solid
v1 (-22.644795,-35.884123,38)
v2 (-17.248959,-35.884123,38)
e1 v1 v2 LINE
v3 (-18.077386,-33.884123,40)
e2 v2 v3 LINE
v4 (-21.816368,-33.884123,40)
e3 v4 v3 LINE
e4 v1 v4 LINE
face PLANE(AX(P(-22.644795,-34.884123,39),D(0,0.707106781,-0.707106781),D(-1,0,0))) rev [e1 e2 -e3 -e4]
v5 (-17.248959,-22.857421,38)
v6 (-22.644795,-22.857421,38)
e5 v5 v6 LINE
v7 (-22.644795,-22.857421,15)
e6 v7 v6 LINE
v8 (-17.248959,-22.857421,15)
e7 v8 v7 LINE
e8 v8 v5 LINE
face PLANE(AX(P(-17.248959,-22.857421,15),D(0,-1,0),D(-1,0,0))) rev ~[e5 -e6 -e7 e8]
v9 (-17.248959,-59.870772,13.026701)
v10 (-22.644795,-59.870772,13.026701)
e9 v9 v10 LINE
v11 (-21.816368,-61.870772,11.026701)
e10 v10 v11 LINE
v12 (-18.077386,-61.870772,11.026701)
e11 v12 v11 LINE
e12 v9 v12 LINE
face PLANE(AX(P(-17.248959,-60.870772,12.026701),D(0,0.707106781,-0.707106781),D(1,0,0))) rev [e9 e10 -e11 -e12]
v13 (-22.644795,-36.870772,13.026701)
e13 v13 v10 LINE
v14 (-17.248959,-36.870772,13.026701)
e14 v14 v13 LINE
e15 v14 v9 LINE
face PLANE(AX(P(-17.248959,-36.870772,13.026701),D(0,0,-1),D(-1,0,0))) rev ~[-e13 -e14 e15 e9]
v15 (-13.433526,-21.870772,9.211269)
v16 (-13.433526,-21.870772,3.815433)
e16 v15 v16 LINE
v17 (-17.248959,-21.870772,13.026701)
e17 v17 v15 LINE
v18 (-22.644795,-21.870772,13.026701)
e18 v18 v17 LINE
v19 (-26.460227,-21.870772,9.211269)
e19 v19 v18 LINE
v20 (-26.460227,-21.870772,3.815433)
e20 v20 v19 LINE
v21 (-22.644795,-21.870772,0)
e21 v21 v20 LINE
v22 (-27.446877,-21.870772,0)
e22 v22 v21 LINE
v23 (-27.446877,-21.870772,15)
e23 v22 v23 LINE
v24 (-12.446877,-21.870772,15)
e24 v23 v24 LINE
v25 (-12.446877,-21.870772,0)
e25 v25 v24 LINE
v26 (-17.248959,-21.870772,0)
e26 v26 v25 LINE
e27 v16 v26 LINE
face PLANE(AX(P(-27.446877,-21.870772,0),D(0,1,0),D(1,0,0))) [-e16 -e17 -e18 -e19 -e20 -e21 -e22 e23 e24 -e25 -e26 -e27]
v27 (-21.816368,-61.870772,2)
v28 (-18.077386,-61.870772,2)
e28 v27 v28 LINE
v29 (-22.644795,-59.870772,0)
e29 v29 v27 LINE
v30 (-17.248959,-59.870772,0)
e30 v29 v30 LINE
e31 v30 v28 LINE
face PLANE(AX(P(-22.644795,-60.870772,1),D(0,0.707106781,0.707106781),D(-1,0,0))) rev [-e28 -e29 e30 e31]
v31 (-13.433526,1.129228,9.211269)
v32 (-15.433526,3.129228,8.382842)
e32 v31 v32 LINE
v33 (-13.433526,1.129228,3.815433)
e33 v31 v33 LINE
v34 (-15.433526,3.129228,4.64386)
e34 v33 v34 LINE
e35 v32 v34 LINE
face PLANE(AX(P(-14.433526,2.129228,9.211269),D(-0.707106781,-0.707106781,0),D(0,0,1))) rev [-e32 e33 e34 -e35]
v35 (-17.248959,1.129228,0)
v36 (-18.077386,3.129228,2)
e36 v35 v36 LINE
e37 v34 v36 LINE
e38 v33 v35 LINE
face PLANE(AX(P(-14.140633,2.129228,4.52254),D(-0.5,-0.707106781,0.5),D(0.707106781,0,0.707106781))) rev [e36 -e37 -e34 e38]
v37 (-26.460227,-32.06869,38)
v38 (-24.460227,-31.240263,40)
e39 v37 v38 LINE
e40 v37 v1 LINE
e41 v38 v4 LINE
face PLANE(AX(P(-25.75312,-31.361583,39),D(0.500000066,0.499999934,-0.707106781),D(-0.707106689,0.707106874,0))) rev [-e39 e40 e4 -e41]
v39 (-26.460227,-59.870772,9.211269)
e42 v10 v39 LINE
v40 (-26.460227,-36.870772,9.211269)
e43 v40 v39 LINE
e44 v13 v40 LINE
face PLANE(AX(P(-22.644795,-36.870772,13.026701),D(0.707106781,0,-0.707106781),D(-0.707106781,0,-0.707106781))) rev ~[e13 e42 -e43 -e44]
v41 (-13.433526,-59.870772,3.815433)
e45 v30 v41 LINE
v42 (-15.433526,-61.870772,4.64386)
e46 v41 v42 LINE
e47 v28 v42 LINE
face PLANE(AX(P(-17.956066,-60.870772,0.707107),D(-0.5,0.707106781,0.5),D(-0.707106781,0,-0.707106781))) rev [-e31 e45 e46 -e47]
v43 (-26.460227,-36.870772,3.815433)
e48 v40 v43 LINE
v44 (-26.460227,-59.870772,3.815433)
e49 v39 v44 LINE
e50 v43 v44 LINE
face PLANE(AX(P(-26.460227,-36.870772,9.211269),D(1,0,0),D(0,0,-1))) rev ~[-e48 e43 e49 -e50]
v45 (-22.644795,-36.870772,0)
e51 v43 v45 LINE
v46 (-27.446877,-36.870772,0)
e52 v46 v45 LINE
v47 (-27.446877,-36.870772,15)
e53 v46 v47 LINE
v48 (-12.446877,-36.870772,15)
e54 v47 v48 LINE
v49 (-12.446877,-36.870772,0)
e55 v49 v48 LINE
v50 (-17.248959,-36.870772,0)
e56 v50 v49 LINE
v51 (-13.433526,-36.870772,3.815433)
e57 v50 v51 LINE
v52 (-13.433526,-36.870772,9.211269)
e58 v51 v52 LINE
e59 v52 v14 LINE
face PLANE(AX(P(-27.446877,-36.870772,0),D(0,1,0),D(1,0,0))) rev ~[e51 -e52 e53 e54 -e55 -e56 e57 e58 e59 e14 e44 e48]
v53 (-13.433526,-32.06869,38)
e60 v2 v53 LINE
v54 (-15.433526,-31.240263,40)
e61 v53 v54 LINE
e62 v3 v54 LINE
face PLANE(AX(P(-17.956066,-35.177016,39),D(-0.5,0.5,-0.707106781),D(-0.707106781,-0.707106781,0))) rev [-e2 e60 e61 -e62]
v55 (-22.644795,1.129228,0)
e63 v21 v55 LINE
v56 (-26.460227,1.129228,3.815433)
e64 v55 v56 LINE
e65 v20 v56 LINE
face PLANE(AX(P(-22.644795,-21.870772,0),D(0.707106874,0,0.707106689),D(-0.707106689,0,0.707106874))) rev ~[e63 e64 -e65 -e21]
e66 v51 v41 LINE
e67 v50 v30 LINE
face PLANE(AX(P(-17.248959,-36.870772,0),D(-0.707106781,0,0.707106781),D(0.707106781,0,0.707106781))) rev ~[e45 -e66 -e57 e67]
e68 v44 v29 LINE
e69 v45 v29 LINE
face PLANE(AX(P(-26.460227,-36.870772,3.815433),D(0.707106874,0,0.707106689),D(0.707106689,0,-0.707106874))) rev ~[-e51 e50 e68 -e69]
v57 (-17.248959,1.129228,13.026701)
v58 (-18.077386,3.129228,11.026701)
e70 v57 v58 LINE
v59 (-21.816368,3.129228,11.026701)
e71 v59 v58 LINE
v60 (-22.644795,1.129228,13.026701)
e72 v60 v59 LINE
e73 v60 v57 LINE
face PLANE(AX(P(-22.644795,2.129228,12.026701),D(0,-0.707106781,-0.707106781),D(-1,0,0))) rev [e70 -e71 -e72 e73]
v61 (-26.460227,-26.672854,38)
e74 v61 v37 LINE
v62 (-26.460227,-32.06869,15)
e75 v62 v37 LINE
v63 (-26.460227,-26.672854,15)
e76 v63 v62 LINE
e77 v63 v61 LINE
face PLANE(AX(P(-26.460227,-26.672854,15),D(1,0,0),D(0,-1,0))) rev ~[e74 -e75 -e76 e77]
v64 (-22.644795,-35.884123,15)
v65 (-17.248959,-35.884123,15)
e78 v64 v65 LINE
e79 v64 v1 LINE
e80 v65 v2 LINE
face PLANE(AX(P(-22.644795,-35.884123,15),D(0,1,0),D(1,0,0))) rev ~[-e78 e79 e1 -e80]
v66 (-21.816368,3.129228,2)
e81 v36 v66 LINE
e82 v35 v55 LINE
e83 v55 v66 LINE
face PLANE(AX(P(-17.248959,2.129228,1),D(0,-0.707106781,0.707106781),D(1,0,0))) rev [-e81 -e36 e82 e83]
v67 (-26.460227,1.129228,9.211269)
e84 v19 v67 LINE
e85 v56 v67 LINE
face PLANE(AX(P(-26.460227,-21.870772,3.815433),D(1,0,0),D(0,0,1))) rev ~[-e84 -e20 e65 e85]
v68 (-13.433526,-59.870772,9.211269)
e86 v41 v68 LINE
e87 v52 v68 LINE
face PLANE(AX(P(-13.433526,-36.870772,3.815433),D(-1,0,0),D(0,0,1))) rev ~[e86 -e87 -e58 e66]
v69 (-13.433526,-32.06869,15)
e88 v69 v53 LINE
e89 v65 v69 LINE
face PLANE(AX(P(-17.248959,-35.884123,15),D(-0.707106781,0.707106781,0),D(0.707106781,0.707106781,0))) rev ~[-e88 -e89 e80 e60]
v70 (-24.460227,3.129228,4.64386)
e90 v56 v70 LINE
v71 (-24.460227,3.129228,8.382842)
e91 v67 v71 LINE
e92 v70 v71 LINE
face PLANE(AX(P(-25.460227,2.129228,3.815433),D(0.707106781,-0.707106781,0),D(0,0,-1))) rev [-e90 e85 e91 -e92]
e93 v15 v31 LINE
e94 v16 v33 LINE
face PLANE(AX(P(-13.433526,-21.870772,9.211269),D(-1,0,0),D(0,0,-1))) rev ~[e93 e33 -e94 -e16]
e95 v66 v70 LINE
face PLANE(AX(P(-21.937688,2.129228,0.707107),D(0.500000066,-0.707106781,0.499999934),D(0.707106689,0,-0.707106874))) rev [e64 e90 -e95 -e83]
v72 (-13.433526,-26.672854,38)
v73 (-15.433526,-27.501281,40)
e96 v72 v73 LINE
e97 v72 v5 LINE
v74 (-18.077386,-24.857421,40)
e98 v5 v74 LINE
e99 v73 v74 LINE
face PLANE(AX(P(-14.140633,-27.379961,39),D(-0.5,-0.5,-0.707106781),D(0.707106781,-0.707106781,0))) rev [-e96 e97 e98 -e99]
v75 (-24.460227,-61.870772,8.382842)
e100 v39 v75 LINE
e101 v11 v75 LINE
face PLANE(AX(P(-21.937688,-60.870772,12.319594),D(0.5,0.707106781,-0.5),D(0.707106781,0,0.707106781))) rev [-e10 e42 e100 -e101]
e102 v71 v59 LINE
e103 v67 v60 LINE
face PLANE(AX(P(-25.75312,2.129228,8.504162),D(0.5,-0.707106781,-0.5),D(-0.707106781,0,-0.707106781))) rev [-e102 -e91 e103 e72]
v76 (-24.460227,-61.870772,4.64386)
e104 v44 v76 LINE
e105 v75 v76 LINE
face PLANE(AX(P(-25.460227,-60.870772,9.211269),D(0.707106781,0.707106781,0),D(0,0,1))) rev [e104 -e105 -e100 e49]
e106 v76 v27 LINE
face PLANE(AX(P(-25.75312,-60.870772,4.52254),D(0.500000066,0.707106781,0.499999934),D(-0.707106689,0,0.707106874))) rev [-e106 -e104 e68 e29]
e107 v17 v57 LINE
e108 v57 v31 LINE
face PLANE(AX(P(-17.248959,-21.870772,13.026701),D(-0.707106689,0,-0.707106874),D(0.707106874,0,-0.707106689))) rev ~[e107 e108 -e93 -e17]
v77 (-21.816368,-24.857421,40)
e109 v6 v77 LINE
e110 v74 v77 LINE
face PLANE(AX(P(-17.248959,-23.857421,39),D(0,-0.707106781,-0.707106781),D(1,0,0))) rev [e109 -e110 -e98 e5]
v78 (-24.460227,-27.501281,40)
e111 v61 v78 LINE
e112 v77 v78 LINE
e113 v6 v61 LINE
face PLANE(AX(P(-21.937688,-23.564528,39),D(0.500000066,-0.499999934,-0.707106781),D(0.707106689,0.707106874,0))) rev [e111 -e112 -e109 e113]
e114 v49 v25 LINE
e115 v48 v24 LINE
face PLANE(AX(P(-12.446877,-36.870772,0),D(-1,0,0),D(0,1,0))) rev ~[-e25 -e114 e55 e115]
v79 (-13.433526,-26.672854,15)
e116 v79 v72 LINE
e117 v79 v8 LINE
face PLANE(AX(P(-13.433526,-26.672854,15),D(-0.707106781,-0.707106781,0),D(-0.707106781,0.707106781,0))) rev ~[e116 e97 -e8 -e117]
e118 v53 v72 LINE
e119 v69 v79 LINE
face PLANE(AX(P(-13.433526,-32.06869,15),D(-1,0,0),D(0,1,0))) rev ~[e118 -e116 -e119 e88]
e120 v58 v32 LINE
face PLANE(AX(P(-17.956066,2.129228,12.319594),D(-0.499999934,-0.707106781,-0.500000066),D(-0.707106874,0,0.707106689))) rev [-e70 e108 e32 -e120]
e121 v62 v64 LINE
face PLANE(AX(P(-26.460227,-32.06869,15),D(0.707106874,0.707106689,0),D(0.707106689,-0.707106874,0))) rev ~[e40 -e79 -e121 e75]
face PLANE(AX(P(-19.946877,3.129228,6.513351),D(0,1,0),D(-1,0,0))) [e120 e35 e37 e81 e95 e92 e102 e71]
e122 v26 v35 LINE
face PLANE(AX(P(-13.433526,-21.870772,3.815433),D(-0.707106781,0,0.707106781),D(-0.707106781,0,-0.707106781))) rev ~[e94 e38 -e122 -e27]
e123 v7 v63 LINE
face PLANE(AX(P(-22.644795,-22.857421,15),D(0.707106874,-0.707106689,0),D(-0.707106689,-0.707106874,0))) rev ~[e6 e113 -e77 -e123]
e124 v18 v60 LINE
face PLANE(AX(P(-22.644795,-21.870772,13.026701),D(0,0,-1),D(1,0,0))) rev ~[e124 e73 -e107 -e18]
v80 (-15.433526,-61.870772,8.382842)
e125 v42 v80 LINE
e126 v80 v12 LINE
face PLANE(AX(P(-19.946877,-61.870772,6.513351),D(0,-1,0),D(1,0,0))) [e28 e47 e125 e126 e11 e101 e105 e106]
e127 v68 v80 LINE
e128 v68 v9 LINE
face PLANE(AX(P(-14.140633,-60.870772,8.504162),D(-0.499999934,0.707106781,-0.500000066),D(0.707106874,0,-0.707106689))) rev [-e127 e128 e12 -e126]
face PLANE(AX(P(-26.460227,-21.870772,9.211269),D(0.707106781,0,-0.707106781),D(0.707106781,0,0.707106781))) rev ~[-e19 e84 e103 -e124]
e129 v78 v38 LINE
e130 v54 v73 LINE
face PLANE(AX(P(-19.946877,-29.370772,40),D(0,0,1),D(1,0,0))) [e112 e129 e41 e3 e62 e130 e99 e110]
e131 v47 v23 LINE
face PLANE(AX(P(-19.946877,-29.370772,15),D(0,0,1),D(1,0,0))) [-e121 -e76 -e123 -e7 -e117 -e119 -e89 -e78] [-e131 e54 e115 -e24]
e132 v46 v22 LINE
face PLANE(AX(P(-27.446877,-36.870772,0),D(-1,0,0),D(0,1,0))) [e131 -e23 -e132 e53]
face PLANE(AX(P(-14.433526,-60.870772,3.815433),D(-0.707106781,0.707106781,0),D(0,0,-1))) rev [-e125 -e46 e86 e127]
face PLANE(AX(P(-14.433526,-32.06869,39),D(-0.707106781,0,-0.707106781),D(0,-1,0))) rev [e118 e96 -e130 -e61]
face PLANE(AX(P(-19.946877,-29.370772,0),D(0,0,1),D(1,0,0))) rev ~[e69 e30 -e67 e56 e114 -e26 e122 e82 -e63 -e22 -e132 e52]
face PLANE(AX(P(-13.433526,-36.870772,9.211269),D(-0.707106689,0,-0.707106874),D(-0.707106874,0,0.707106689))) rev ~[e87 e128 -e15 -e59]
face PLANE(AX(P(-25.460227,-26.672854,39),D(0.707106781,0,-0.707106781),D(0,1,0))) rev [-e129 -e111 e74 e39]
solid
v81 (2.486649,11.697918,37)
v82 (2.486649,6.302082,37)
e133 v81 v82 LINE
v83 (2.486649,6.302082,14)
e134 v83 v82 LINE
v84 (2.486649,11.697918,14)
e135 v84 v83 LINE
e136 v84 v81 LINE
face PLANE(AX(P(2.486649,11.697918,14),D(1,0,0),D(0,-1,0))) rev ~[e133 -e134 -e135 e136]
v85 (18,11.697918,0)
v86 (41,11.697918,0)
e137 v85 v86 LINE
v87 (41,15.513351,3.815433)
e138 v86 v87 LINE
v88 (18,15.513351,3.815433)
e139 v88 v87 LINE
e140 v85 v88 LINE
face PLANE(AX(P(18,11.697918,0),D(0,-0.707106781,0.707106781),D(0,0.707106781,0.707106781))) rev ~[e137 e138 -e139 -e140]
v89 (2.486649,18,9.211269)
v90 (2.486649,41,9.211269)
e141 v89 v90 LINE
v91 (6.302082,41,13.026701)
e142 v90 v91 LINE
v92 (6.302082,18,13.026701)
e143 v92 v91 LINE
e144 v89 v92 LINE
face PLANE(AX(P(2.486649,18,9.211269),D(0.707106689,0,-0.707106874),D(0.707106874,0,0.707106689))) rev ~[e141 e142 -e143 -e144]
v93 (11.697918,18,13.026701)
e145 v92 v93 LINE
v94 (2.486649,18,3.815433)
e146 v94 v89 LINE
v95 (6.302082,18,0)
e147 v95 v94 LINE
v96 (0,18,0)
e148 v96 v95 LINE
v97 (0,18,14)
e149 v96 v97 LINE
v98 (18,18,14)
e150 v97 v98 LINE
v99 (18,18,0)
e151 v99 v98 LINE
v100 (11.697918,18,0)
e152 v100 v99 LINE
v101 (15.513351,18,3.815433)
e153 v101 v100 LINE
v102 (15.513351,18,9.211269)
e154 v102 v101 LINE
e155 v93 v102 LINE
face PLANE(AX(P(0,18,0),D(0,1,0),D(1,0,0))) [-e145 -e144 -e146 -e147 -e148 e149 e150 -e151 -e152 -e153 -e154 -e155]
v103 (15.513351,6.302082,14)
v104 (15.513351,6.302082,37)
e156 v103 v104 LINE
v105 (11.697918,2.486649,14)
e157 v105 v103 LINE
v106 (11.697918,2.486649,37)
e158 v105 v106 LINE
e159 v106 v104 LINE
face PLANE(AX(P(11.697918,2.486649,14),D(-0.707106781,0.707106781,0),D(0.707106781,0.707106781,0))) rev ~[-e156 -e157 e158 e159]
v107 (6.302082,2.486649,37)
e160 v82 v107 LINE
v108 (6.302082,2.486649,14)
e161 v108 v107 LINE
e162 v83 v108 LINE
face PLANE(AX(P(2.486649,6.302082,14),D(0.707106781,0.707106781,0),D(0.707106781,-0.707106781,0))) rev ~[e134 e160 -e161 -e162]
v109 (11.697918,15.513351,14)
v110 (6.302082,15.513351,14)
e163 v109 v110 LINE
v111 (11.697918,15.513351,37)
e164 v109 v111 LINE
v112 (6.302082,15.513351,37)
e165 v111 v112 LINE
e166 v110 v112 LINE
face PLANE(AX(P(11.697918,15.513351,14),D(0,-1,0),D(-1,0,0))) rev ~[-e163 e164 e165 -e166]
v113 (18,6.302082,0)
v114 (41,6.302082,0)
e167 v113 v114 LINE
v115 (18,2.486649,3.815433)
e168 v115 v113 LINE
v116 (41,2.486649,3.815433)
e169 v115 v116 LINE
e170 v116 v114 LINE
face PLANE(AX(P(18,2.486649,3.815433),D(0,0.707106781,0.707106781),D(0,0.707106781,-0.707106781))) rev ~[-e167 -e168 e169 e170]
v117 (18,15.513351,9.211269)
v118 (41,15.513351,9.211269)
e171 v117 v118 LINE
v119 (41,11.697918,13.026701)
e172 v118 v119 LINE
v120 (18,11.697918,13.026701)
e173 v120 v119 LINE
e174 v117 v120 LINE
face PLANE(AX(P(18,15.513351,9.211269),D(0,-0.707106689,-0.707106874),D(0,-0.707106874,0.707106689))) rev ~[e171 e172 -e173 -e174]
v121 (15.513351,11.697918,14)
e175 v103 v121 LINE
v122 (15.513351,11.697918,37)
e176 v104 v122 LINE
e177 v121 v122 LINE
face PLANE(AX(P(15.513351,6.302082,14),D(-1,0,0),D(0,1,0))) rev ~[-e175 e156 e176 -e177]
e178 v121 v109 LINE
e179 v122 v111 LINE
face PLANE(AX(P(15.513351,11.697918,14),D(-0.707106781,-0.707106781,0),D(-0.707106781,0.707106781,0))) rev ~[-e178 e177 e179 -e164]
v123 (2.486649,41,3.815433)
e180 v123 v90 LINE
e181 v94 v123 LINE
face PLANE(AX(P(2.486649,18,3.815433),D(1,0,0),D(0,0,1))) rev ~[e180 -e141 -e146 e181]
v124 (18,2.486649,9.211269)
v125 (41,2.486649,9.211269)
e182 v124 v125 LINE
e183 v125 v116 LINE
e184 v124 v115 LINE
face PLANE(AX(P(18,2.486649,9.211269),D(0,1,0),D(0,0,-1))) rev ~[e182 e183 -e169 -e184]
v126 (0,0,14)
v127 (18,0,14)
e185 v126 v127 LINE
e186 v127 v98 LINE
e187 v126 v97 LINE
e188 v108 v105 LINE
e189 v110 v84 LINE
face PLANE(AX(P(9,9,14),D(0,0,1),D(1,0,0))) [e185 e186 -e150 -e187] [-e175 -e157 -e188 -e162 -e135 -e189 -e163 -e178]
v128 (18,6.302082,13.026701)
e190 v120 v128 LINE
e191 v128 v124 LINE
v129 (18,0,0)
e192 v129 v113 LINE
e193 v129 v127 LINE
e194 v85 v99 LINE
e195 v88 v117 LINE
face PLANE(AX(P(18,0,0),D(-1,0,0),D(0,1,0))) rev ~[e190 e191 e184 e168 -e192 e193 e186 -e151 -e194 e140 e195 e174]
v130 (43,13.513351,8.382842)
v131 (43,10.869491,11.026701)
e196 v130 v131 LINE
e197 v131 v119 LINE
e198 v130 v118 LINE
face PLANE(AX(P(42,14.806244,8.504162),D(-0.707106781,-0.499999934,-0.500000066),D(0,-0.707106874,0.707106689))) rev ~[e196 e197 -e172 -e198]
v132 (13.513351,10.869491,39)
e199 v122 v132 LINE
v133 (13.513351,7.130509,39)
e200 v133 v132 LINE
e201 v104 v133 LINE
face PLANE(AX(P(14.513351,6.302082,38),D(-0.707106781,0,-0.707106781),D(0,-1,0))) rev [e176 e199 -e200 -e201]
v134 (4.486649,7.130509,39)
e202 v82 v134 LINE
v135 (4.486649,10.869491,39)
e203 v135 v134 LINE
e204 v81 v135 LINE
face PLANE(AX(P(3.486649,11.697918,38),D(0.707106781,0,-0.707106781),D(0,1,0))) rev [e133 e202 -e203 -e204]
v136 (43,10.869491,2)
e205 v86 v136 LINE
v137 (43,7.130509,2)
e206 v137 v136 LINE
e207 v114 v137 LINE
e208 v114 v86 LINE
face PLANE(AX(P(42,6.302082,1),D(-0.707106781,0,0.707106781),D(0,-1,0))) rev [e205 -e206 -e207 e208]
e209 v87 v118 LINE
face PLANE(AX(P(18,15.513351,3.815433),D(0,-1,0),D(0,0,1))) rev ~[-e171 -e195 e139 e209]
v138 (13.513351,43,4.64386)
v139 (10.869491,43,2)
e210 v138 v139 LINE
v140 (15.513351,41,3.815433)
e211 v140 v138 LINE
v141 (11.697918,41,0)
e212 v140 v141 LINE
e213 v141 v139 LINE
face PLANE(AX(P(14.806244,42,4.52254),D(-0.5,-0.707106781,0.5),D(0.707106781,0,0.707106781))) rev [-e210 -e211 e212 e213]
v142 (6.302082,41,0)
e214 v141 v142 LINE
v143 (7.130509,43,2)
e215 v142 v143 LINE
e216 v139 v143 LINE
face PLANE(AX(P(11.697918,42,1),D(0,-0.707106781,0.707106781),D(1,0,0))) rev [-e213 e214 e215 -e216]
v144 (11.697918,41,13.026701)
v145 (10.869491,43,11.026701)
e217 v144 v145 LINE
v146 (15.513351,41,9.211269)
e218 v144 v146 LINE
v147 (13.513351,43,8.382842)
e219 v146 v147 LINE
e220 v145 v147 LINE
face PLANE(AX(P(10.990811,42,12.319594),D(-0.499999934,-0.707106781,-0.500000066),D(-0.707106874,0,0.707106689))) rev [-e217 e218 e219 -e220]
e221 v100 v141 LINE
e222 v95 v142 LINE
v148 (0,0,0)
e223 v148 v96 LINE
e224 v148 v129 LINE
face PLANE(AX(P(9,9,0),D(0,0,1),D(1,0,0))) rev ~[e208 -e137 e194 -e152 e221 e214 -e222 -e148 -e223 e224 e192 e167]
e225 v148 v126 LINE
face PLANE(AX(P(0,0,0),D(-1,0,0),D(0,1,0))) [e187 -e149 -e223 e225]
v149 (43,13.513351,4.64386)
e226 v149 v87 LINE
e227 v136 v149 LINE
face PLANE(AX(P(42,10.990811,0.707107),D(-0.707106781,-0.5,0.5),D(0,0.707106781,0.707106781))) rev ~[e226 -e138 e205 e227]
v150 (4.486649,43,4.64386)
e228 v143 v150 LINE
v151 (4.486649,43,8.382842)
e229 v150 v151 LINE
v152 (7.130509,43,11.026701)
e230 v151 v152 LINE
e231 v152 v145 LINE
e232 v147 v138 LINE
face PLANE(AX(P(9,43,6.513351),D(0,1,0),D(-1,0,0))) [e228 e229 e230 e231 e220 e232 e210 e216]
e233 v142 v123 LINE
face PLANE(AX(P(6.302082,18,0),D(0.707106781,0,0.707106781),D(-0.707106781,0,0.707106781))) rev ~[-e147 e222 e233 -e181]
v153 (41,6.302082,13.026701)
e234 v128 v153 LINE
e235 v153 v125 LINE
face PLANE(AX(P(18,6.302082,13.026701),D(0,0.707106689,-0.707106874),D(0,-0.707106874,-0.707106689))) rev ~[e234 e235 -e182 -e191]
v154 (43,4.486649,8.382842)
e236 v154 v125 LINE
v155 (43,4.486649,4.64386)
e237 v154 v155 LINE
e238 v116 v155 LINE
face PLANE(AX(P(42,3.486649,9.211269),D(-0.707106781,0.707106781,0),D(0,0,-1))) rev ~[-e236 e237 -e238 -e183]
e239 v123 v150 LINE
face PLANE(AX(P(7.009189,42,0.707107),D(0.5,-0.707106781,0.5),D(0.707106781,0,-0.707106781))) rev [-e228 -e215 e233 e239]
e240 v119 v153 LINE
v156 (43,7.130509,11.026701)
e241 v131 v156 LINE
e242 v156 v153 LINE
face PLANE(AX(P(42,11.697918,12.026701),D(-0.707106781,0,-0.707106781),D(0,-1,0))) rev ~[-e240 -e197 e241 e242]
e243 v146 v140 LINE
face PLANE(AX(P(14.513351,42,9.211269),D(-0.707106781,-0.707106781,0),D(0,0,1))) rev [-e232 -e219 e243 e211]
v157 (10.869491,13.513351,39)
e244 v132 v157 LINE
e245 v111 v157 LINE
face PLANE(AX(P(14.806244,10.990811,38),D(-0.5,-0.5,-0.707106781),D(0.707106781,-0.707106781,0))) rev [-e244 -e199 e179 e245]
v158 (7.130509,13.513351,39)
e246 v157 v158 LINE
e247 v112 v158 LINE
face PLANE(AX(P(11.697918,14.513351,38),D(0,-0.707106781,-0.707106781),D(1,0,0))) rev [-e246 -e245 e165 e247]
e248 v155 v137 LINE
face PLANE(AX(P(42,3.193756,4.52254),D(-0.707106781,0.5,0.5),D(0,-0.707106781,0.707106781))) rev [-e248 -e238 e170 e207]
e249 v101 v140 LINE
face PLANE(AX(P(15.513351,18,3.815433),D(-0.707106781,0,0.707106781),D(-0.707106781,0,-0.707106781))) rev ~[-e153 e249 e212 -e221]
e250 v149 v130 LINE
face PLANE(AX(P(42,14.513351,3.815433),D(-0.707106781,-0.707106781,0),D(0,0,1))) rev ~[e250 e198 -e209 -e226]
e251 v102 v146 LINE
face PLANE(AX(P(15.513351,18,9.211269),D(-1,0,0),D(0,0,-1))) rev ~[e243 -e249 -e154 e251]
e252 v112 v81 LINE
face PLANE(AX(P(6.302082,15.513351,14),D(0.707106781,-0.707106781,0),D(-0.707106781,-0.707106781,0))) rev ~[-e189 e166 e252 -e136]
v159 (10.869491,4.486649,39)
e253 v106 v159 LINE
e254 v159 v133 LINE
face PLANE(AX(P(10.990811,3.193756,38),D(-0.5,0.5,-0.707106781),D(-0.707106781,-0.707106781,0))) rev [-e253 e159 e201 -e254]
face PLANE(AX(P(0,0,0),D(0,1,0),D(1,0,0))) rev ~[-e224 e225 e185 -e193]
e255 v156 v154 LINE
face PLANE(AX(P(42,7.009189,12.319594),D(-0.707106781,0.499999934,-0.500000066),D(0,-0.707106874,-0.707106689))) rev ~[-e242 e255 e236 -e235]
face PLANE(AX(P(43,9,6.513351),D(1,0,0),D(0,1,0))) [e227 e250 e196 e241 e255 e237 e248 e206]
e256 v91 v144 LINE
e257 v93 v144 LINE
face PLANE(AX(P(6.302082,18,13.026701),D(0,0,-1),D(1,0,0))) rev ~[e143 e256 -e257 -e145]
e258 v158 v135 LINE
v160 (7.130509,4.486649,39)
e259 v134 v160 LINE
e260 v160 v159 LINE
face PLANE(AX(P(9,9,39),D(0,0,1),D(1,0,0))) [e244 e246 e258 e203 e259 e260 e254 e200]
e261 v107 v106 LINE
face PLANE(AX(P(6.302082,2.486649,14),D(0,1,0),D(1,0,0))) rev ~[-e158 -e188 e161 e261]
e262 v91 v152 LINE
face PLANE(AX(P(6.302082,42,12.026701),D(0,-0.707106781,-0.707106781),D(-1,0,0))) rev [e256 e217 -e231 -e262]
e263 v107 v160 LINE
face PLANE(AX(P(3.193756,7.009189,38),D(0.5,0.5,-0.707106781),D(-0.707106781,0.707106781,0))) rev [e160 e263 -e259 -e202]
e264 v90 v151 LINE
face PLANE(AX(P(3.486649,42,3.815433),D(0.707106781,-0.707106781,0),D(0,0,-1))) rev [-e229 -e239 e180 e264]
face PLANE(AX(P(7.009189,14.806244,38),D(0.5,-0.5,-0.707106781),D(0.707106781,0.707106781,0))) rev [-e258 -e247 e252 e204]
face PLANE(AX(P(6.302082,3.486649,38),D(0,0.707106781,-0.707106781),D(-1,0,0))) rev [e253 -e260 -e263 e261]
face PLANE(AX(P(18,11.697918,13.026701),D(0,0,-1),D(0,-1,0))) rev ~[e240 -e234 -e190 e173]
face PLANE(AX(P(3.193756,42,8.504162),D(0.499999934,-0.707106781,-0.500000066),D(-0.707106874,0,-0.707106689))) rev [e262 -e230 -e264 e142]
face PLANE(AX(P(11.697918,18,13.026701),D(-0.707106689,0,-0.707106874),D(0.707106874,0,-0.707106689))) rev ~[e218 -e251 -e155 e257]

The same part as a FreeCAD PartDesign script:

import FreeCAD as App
import Part
import Sketcher
Q = App.Units.Quantity


def edges_at(feature, points):
    """Names of the edges that pass closest to the given points."""
    edges = feature.Shape.Edges
    near = lambda p: min(range(len(edges)), key=lambda i: edges[i].distToShape(Part.Vertex(*p))[0])
    return sorted({f"Edge{near(p) + 1}" for p in points})

doc = App.newDocument("Part")
body = doc.addObject("PartDesign::Body", "Body")

# Sketch on XY plane
sketch1 = body.newObject("Sketcher::SketchObject", "Sketch")
sketch1.AttachmentSupport = (doc.getObject("XY_Plane"), [""])
sketch1.MapMode = "FlatFace"
sketch1.addGeometry(Part.LineSegment(App.Vector(0, 18, 0), App.Vector(0, 0, 0)), False)
sketch1.addGeometry(Part.LineSegment(App.Vector(0, 0, 0), App.Vector(18, 0, 0)), False)
sketch1.addGeometry(Part.LineSegment(App.Vector(18, 0, 0), App.Vector(18, 18, 0)), False)
sketch1.addGeometry(Part.LineSegment(App.Vector(18, 18, 0), App.Vector(0, 18, 0)), False)
sketch1.addConstraint(Sketcher.Constraint("Coincident", 0, 2, 1, 1))
sketch1.addConstraint(Sketcher.Constraint("Coincident", 1, 2, 2, 1))
sketch1.addConstraint(Sketcher.Constraint("Coincident", 2, 2, 3, 1))
sketch1.addConstraint(Sketcher.Constraint("Coincident", 3, 2, 0, 1))
sketch1.addConstraint(Sketcher.Constraint("Vertical", 0))
sketch1.addConstraint(Sketcher.Constraint("Horizontal", 1))
sketch1.addConstraint(Sketcher.Constraint("Vertical", 2))
sketch1.addConstraint(Sketcher.Constraint("Horizontal", 3))
sketch1.addConstraint(Sketcher.Constraint("Coincident", 0, 2, -1, 1))
sketch1.addConstraint(Sketcher.Constraint("Equal", 3, 0))
sketch1.addConstraint(Sketcher.Constraint("DistanceX", 1, 1, 1, 2, Q("18 mm")))
pad1 = body.newObject("PartDesign::Pad", "Pad")
pad1.Profile = sketch1
pad1.Length = 14

# Sketch on YZ plane
sketch2 = body.newObject("Sketcher::SketchObject", "Sketch001")
sketch2.AttachmentSupport = (doc.getObject("YZ_Plane"), [""])
sketch2.MapMode = "FlatFace"
sketch2.AttachmentOffset = App.Placement(App.Vector(0, 0, 18), App.Rotation())
sketch2.addGeometry(Part.LineSegment(App.Vector(6.302082, 0, 0), App.Vector(11.697918, 0, 0)), False)
sketch2.addGeometry(Part.LineSegment(App.Vector(11.697918, 0, 0), App.Vector(15.513351, 3.815433, 0)), False)
sketch2.addGeometry(Part.LineSegment(App.Vector(15.513351, 3.815433, 0), App.Vector(15.513351, 9.211269, 0)), False)
sketch2.addGeometry(Part.LineSegment(App.Vector(15.513351, 9.211269, 0), App.Vector(11.697918, 13.026701, 0)), False)
sketch2.addGeometry(Part.LineSegment(App.Vector(11.697918, 13.026701, 0), App.Vector(6.302082, 13.026701, 0)), False)
sketch2.addGeometry(Part.LineSegment(App.Vector(6.302082, 13.026701, 0), App.Vector(2.486649, 9.211269, 0)), False)
sketch2.addGeometry(Part.LineSegment(App.Vector(2.486649, 9.211269, 0), App.Vector(2.486649, 3.815433, 0)), False)
sketch2.addGeometry(Part.LineSegment(App.Vector(2.486649, 3.815433, 0), App.Vector(6.302082, 0, 0)), False)
sketch2.addConstraint(Sketcher.Constraint("Coincident", 0, 2, 1, 1))
sketch2.addConstraint(Sketcher.Constraint("Coincident", 1, 2, 2, 1))
sketch2.addConstraint(Sketcher.Constraint("Coincident", 2, 2, 3, 1))
sketch2.addConstraint(Sketcher.Constraint("Coincident", 3, 2, 4, 1))
sketch2.addConstraint(Sketcher.Constraint("Coincident", 4, 2, 5, 1))
sketch2.addConstraint(Sketcher.Constraint("Coincident", 5, 2, 6, 1))
sketch2.addConstraint(Sketcher.Constraint("Coincident", 6, 2, 7, 1))
sketch2.addConstraint(Sketcher.Constraint("Coincident", 7, 2, 0, 1))
sketch2.addConstraint(Sketcher.Constraint("Horizontal", 0))
sketch2.addConstraint(Sketcher.Constraint("Vertical", 2))
sketch2.addConstraint(Sketcher.Constraint("Horizontal", 4))
sketch2.addConstraint(Sketcher.Constraint("Vertical", 6))
sketch2.addConstraint(Sketcher.Constraint("PointOnObject", 0, 2, -1))
sketch2.addConstraint(Sketcher.Constraint("Perpendicular", 1, 3))
sketch2.addConstraint(Sketcher.Constraint("Perpendicular", 3, 5))
sketch2.addConstraint(Sketcher.Constraint("Perpendicular", 5, 7))
sketch2.addConstraint(Sketcher.Constraint("Horizontal", 2, 2, 5, 2))
sketch2.addConstraint(Sketcher.Constraint("Horizontal", 1, 2, 6, 2))
sketch2.addConstraint(Sketcher.Constraint("Vertical", 0, 2, 3, 2))
sketch2.addConstraint(Sketcher.Constraint("Vertical", 4, 2, 7, 2))
sketch2.addConstraint(Sketcher.Constraint("Equal", 4, 2))
sketch2.addConstraint(Sketcher.Constraint("DistanceY", -1, 1, 3, 2, Q("13.026701 mm")))
sketch2.addConstraint(Sketcher.Constraint("DistanceX", 0, 1, 0, 2, Q("5.395836 mm")))
sketch2.addConstraint(Sketcher.Constraint("DistanceX", -1, 1, 1, 2, Q("15.513351 mm")))
pad2 = body.newObject("PartDesign::Pad", "Pad001")
pad2.Profile = sketch2
pad2.Length = 25

# Sketch on XZ plane
sketch3 = body.newObject("Sketcher::SketchObject", "Sketch002")
sketch3.AttachmentSupport = (doc.getObject("XZ_Plane"), [""])
sketch3.MapMode = "FlatFace"
sketch3.AttachmentOffset = App.Placement(App.Vector(0, 0, -18), App.Rotation())
sketch3.addGeometry(Part.LineSegment(App.Vector(11.697918, 0, 0), App.Vector(6.302082, 0, 0)), False)
sketch3.addGeometry(Part.LineSegment(App.Vector(6.302082, 0, 0), App.Vector(2.486649, 3.815433, 0)), False)
sketch3.addGeometry(Part.LineSegment(App.Vector(2.486649, 3.815433, 0), App.Vector(2.486649, 9.211269, 0)), False)
sketch3.addGeometry(Part.LineSegment(App.Vector(2.486649, 9.211269, 0), App.Vector(6.302082, 13.026701, 0)), False)
sketch3.addGeometry(Part.LineSegment(App.Vector(6.302082, 13.026701, 0), App.Vector(11.697918, 13.026701, 0)), False)
sketch3.addGeometry(Part.LineSegment(App.Vector(11.697918, 13.026701, 0), App.Vector(15.513351, 9.211269, 0)), False)
sketch3.addGeometry(Part.LineSegment(App.Vector(15.513351, 9.211269, 0), App.Vector(15.513351, 3.815433, 0)), False)
sketch3.addGeometry(Part.LineSegment(App.Vector(15.513351, 3.815433, 0), App.Vector(11.697918, 0, 0)), False)
sketch3.addConstraint(Sketcher.Constraint("Coincident", 0, 2, 1, 1))
sketch3.addConstraint(Sketcher.Constraint("Coincident", 1, 2, 2, 1))
sketch3.addConstraint(Sketcher.Constraint("Coincident", 2, 2, 3, 1))
sketch3.addConstraint(Sketcher.Constraint("Coincident", 3, 2, 4, 1))
sketch3.addConstraint(Sketcher.Constraint("Coincident", 4, 2, 5, 1))
sketch3.addConstraint(Sketcher.Constraint("Coincident", 5, 2, 6, 1))
sketch3.addConstraint(Sketcher.Constraint("Coincident", 6, 2, 7, 1))
sketch3.addConstraint(Sketcher.Constraint("Coincident", 7, 2, 0, 1))
sketch3.addConstraint(Sketcher.Constraint("Horizontal", 0))
sketch3.addConstraint(Sketcher.Constraint("Vertical", 2))
sketch3.addConstraint(Sketcher.Constraint("Horizontal", 4))
sketch3.addConstraint(Sketcher.Constraint("Vertical", 6))
sketch3.addConstraint(Sketcher.Constraint("PointOnObject", 0, 2, -1))
sketch3.addConstraint(Sketcher.Constraint("Perpendicular", 1, 3))
sketch3.addConstraint(Sketcher.Constraint("Perpendicular", 3, 5))
sketch3.addConstraint(Sketcher.Constraint("Perpendicular", 5, 7))
sketch3.addConstraint(Sketcher.Constraint("Horizontal", 2, 2, 5, 2))
sketch3.addConstraint(Sketcher.Constraint("Horizontal", 1, 2, 6, 2))
sketch3.addConstraint(Sketcher.Constraint("Vertical", 0, 2, 3, 2))
sketch3.addConstraint(Sketcher.Constraint("Vertical", 4, 2, 7, 2))
sketch3.addConstraint(Sketcher.Constraint("Equal", 4, 2))
sketch3.addConstraint(Sketcher.Constraint("DistanceY", -1, 1, 3, 2, Q("13.026701 mm")))
sketch3.addConstraint(Sketcher.Constraint("DistanceX", 0, 2, 0, 1, Q("5.395836 mm")))
sketch3.addConstraint(Sketcher.Constraint("DistanceX", -1, 1, 1, 2, Q("2.486649 mm")))
pad3 = body.newObject("PartDesign::Pad", "Pad002")
pad3.Profile = sketch3
pad3.Length = 25
pad3.Reversed = True

# Sketch on XY plane
sketch4 = body.newObject("Sketcher::SketchObject", "Sketch003")
sketch4.AttachmentSupport = (doc.getObject("XY_Plane"), [""])
sketch4.MapMode = "FlatFace"
sketch4.AttachmentOffset = App.Placement(App.Vector(0, 0, 14), App.Rotation())
sketch4.addGeometry(Part.LineSegment(App.Vector(11.697918, 15.513351, 0), App.Vector(6.302082, 15.513351, 0)), False)
sketch4.addGeometry(Part.LineSegment(App.Vector(6.302082, 15.513351, 0), App.Vector(2.486649, 11.697918, 0)), False)
sketch4.addGeometry(Part.LineSegment(App.Vector(2.486649, 11.697918, 0), App.Vector(2.486649, 6.302082, 0)), False)
sketch4.addGeometry(Part.LineSegment(App.Vector(2.486649, 6.302082, 0), App.Vector(6.302082, 2.486649, 0)), False)
sketch4.addGeometry(Part.LineSegment(App.Vector(6.302082, 2.486649, 0), App.Vector(11.697918, 2.486649, 0)), False)
sketch4.addGeometry(Part.LineSegment(App.Vector(11.697918, 2.486649, 0), App.Vector(15.513351, 6.302082, 0)), False)
sketch4.addGeometry(Part.LineSegment(App.Vector(15.513351, 6.302082, 0), App.Vector(15.513351, 11.697918, 0)), False)
sketch4.addGeometry(Part.LineSegment(App.Vector(15.513351, 11.697918, 0), App.Vector(11.697918, 15.513351, 0)), False)
sketch4.addConstraint(Sketcher.Constraint("Coincident", 0, 2, 1, 1))
sketch4.addConstraint(Sketcher.Constraint("Coincident", 1, 2, 2, 1))
sketch4.addConstraint(Sketcher.Constraint("Coincident", 2, 2, 3, 1))
sketch4.addConstraint(Sketcher.Constraint("Coincident", 3, 2, 4, 1))
sketch4.addConstraint(Sketcher.Constraint("Coincident", 4, 2, 5, 1))
sketch4.addConstraint(Sketcher.Constraint("Coincident", 5, 2, 6, 1))
sketch4.addConstraint(Sketcher.Constraint("Coincident", 6, 2, 7, 1))
sketch4.addConstraint(Sketcher.Constraint("Coincident", 7, 2, 0, 1))
sketch4.addConstraint(Sketcher.Constraint("Horizontal", 0))
sketch4.addConstraint(Sketcher.Constraint("Vertical", 2))
sketch4.addConstraint(Sketcher.Constraint("Horizontal", 4))
sketch4.addConstraint(Sketcher.Constraint("Vertical", 6))
sketch4.addConstraint(Sketcher.Constraint("Perpendicular", 1, 3))
sketch4.addConstraint(Sketcher.Constraint("Perpendicular", 3, 5))
sketch4.addConstraint(Sketcher.Constraint("Perpendicular", 5, 7))
sketch4.addConstraint(Sketcher.Constraint("Horizontal", 2, 2, 5, 2))
sketch4.addConstraint(Sketcher.Constraint("Horizontal", 1, 2, 6, 2))
sketch4.addConstraint(Sketcher.Constraint("Vertical", 0, 2, 3, 2))
sketch4.addConstraint(Sketcher.Constraint("Vertical", 4, 2, 7, 2))
sketch4.addConstraint(Sketcher.Constraint("Equal", 4, 2))
sketch4.addConstraint(Sketcher.Constraint("DistanceX", 0, 2, 0, 1, Q("5.395836 mm")))
sketch4.addConstraint(Sketcher.Constraint("DistanceY", -1, 1, 0, 2, Q("15.513351 mm")))
sketch4.addConstraint(Sketcher.Constraint("DistanceX", -1, 1, 1, 2, Q("2.486649 mm")))
sketch4.addConstraint(Sketcher.Constraint("DistanceY", -1, 1, 3, 2, Q("2.486649 mm")))
pad4 = body.newObject("PartDesign::Pad", "Pad003")
pad4.Profile = sketch4
pad4.Length = 25
doc.recompute()

chamfer = body.newObject("PartDesign::Chamfer", "Chamfer")
chamfer.Base = (pad4, edges_at(pad4, [
    (9, 15.513, 39),
    (4.394, 13.606, 39),
    (2.487, 9, 39),
    (4.394, 4.394, 39),
    (9, 2.487, 39),
    (13.606, 4.394, 39),
    (15.513, 9, 39),
    (13.606, 13.606, 39),
    (43, 4.394, 1.908),
    (43, 9, 0),
    (43, 13.606, 1.908),
    (43, 15.513, 6.513),
    (43, 13.606, 11.119),
    (43, 9, 13.027),
    (43, 4.394, 11.119),
    (43, 2.487, 6.513),
    (13.606, 43, 1.908),
    (9, 43, 0),
    (4.394, 43, 1.908),
    (2.487, 43, 6.513),
    (4.394, 43, 11.119),
    (9, 43, 13.027),
    (13.606, 43, 11.119),
    (15.513, 43, 6.513),
]))
chamfer.Size = 2
body2 = doc.addObject("PartDesign::Body", "Body001")

# Sketch on XY plane
sketch5 = body2.newObject("Sketcher::SketchObject", "Sketch004")
sketch5.AttachmentSupport = (doc.getObject("XY_Plane001"), [""])
sketch5.MapMode = "FlatFace"
sketch5.addGeometry(Part.LineSegment(App.Vector(-27.446877, -21.870772, 0), App.Vector(-27.446877, -36.870772, 0)), False)
sketch5.addGeometry(Part.LineSegment(App.Vector(-27.446877, -36.870772, 0), App.Vector(-12.446877, -36.870772, 0)), False)
sketch5.addGeometry(Part.LineSegment(App.Vector(-12.446877, -36.870772, 0), App.Vector(-12.446877, -21.870772, 0)), False)
sketch5.addGeometry(Part.LineSegment(App.Vector(-12.446877, -21.870772, 0), App.Vector(-27.446877, -21.870772, 0)), False)
sketch5.addConstraint(Sketcher.Constraint("Coincident", 0, 2, 1, 1))
sketch5.addConstraint(Sketcher.Constraint("Coincident", 1, 2, 2, 1))
sketch5.addConstraint(Sketcher.Constraint("Coincident", 2, 2, 3, 1))
sketch5.addConstraint(Sketcher.Constraint("Coincident", 3, 2, 0, 1))
sketch5.addConstraint(Sketcher.Constraint("Vertical", 0))
sketch5.addConstraint(Sketcher.Constraint("Horizontal", 1))
sketch5.addConstraint(Sketcher.Constraint("Vertical", 2))
sketch5.addConstraint(Sketcher.Constraint("Horizontal", 3))
sketch5.addConstraint(Sketcher.Constraint("Equal", 3, 0))
sketch5.addConstraint(Sketcher.Constraint("DistanceX", 1, 1, 1, 2, Q("15 mm")))
sketch5.addConstraint(Sketcher.Constraint("DistanceY", 2, 2, -1, 1, Q("21.870772 mm")))
sketch5.addConstraint(Sketcher.Constraint("DistanceX", 0, 2, -1, 1, Q("27.446877 mm")))
pad5 = body2.newObject("PartDesign::Pad", "Pad004")
pad5.Profile = sketch5
pad5.Length = 15

# Sketch on XZ plane
sketch6 = body2.newObject("Sketcher::SketchObject", "Sketch005")
sketch6.AttachmentSupport = (doc.getObject("XZ_Plane001"), [""])
sketch6.MapMode = "FlatFace"
sketch6.AttachmentOffset = App.Placement(App.Vector(0, 0, 36.870772), App.Rotation())
sketch6.addGeometry(Part.LineSegment(App.Vector(-22.644795, 0, 0), App.Vector(-17.248959, 0, 0)), False)
sketch6.addGeometry(Part.LineSegment(App.Vector(-17.248959, 0, 0), App.Vector(-13.433526, 3.815433, 0)), False)
sketch6.addGeometry(Part.LineSegment(App.Vector(-13.433526, 3.815433, 0), App.Vector(-13.433526, 9.211269, 0)), False)
sketch6.addGeometry(Part.LineSegment(App.Vector(-13.433526, 9.211269, 0), App.Vector(-17.248959, 13.026701, 0)), False)
sketch6.addGeometry(Part.LineSegment(App.Vector(-17.248959, 13.026701, 0), App.Vector(-22.644795, 13.026701, 0)), False)
sketch6.addGeometry(Part.LineSegment(App.Vector(-22.644795, 13.026701, 0), App.Vector(-26.460227, 9.211269, 0)), False)
sketch6.addGeometry(Part.LineSegment(App.Vector(-26.460227, 9.211269, 0), App.Vector(-26.460227, 3.815433, 0)), False)
sketch6.addGeometry(Part.LineSegment(App.Vector(-26.460227, 3.815433, 0), App.Vector(-22.644795, 0, 0)), False)
sketch6.addConstraint(Sketcher.Constraint("Coincident", 0, 2, 1, 1))
sketch6.addConstraint(Sketcher.Constraint("Coincident", 1, 2, 2, 1))
sketch6.addConstraint(Sketcher.Constraint("Coincident", 2, 2, 3, 1))
sketch6.addConstraint(Sketcher.Constraint("Coincident", 3, 2, 4, 1))
sketch6.addConstraint(Sketcher.Constraint("Coincident", 4, 2, 5, 1))
sketch6.addConstraint(Sketcher.Constraint("Coincident", 5, 2, 6, 1))
sketch6.addConstraint(Sketcher.Constraint("Coincident", 6, 2, 7, 1))
sketch6.addConstraint(Sketcher.Constraint("Coincident", 7, 2, 0, 1))
sketch6.addConstraint(Sketcher.Constraint("Horizontal", 0))
sketch6.addConstraint(Sketcher.Constraint("Vertical", 2))
sketch6.addConstraint(Sketcher.Constraint("Horizontal", 4))
sketch6.addConstraint(Sketcher.Constraint("Vertical", 6))
sketch6.addConstraint(Sketcher.Constraint("PointOnObject", 0, 2, -1))
sketch6.addConstraint(Sketcher.Constraint("Perpendicular", 1, 3))
sketch6.addConstraint(Sketcher.Constraint("Perpendicular", 3, 5))
sketch6.addConstraint(Sketcher.Constraint("Perpendicular", 5, 7))
sketch6.addConstraint(Sketcher.Constraint("Horizontal", 2, 2, 5, 2))
sketch6.addConstraint(Sketcher.Constraint("Horizontal", 1, 2, 6, 2))
sketch6.addConstraint(Sketcher.Constraint("Vertical", 0, 2, 3, 2))
sketch6.addConstraint(Sketcher.Constraint("Vertical", 4, 2, 7, 2))
sketch6.addConstraint(Sketcher.Constraint("Equal", 4, 2))
sketch6.addConstraint(Sketcher.Constraint("DistanceY", -1, 1, 3, 2, Q("13.026701 mm")))
sketch6.addConstraint(Sketcher.Constraint("DistanceX", 0, 1, 0, 2, Q("5.395836 mm")))
sketch6.addConstraint(Sketcher.Constraint("DistanceX", 0, 2, -1, 1, Q("17.248959 mm")))
pad6 = body2.newObject("PartDesign::Pad", "Pad005")
pad6.Profile = sketch6
pad6.Length = 25

# Sketch on XZ plane
sketch7 = body2.newObject("Sketcher::SketchObject", "Sketch006")
sketch7.AttachmentSupport = (doc.getObject("XZ_Plane001"), [""])
sketch7.MapMode = "FlatFace"
sketch7.AttachmentOffset = App.Placement(App.Vector(0, 0, 21.870772), App.Rotation())
sketch7.addGeometry(Part.LineSegment(App.Vector(-17.248959, 0, 0), App.Vector(-22.644795, 0, 0)), False)
sketch7.addGeometry(Part.LineSegment(App.Vector(-22.644795, 0, 0), App.Vector(-26.460227, 3.815433, 0)), False)
sketch7.addGeometry(Part.LineSegment(App.Vector(-26.460227, 3.815433, 0), App.Vector(-26.460227, 9.211269, 0)), False)
sketch7.addGeometry(Part.LineSegment(App.Vector(-26.460227, 9.211269, 0), App.Vector(-22.644795, 13.026701, 0)), False)
sketch7.addGeometry(Part.LineSegment(App.Vector(-22.644795, 13.026701, 0), App.Vector(-17.248959, 13.026701, 0)), False)
sketch7.addGeometry(Part.LineSegment(App.Vector(-17.248959, 13.026701, 0), App.Vector(-13.433526, 9.211269, 0)), False)
sketch7.addGeometry(Part.LineSegment(App.Vector(-13.433526, 9.211269, 0), App.Vector(-13.433526, 3.815433, 0)), False)
sketch7.addGeometry(Part.LineSegment(App.Vector(-13.433526, 3.815433, 0), App.Vector(-17.248959, 0, 0)), False)
sketch7.addConstraint(Sketcher.Constraint("Coincident", 0, 2, 1, 1))
sketch7.addConstraint(Sketcher.Constraint("Coincident", 1, 2, 2, 1))
sketch7.addConstraint(Sketcher.Constraint("Coincident", 2, 2, 3, 1))
sketch7.addConstraint(Sketcher.Constraint("Coincident", 3, 2, 4, 1))
sketch7.addConstraint(Sketcher.Constraint("Coincident", 4, 2, 5, 1))
sketch7.addConstraint(Sketcher.Constraint("Coincident", 5, 2, 6, 1))
sketch7.addConstraint(Sketcher.Constraint("Coincident", 6, 2, 7, 1))
sketch7.addConstraint(Sketcher.Constraint("Coincident", 7, 2, 0, 1))
sketch7.addConstraint(Sketcher.Constraint("Horizontal", 0))
sketch7.addConstraint(Sketcher.Constraint("Vertical", 2))
sketch7.addConstraint(Sketcher.Constraint("Horizontal", 4))
sketch7.addConstraint(Sketcher.Constraint("Vertical", 6))
sketch7.addConstraint(Sketcher.Constraint("PointOnObject", 0, 2, -1))
sketch7.addConstraint(Sketcher.Constraint("Perpendicular", 1, 3))
sketch7.addConstraint(Sketcher.Constraint("Perpendicular", 3, 5))
sketch7.addConstraint(Sketcher.Constraint("Perpendicular", 5, 7))
sketch7.addConstraint(Sketcher.Constraint("Horizontal", 2, 2, 5, 2))
sketch7.addConstraint(Sketcher.Constraint("Horizontal", 1, 2, 6, 2))
sketch7.addConstraint(Sketcher.Constraint("Vertical", 0, 2, 3, 2))
sketch7.addConstraint(Sketcher.Constraint("Vertical", 4, 2, 7, 2))
sketch7.addConstraint(Sketcher.Constraint("Equal", 4, 2))
sketch7.addConstraint(Sketcher.Constraint("DistanceY", -1, 1, 3, 2, Q("13.026701 mm")))
sketch7.addConstraint(Sketcher.Constraint("DistanceX", 0, 2, 0, 1, Q("5.395836 mm")))
sketch7.addConstraint(Sketcher.Constraint("DistanceX", 4, 2, -1, 1, Q("17.248959 mm")))
pad7 = body2.newObject("PartDesign::Pad", "Pad006")
pad7.Profile = sketch7
pad7.Length = 25
pad7.Reversed = True

# Sketch on XY plane
sketch8 = body2.newObject("Sketcher::SketchObject", "Sketch007")
sketch8.AttachmentSupport = (doc.getObject("XY_Plane001"), [""])
sketch8.MapMode = "FlatFace"
sketch8.AttachmentOffset = App.Placement(App.Vector(0, 0, 15), App.Rotation())
sketch8.addGeometry(Part.LineSegment(App.Vector(-22.644795, -35.884123, 0), App.Vector(-17.248959, -35.884123, 0)), False)
sketch8.addGeometry(Part.LineSegment(App.Vector(-17.248959, -35.884123, 0), App.Vector(-13.433526, -32.06869, 0)), False)
sketch8.addGeometry(Part.LineSegment(App.Vector(-13.433526, -32.06869, 0), App.Vector(-13.433526, -26.672854, 0)), False)
sketch8.addGeometry(Part.LineSegment(App.Vector(-13.433526, -26.672854, 0), App.Vector(-17.248959, -22.857421, 0)), False)
sketch8.addGeometry(Part.LineSegment(App.Vector(-17.248959, -22.857421, 0), App.Vector(-22.644795, -22.857421, 0)), False)
sketch8.addGeometry(Part.LineSegment(App.Vector(-22.644795, -22.857421, 0), App.Vector(-26.460227, -26.672854, 0)), False)
sketch8.addGeometry(Part.LineSegment(App.Vector(-26.460227, -26.672854, 0), App.Vector(-26.460227, -32.06869, 0)), False)
sketch8.addGeometry(Part.LineSegment(App.Vector(-26.460227, -32.06869, 0), App.Vector(-22.644795, -35.884123, 0)), False)
sketch8.addConstraint(Sketcher.Constraint("Coincident", 0, 2, 1, 1))
sketch8.addConstraint(Sketcher.Constraint("Coincident", 1, 2, 2, 1))
sketch8.addConstraint(Sketcher.Constraint("Coincident", 2, 2, 3, 1))
sketch8.addConstraint(Sketcher.Constraint("Coincident", 3, 2, 4, 1))
sketch8.addConstraint(Sketcher.Constraint("Coincident", 4, 2, 5, 1))
sketch8.addConstraint(Sketcher.Constraint("Coincident", 5, 2, 6, 1))
sketch8.addConstraint(Sketcher.Constraint("Coincident", 6, 2, 7, 1))
sketch8.addConstraint(Sketcher.Constraint("Coincident", 7, 2, 0, 1))
sketch8.addConstraint(Sketcher.Constraint("Horizontal", 0))
sketch8.addConstraint(Sketcher.Constraint("Vertical", 2))
sketch8.addConstraint(Sketcher.Constraint("Horizontal", 4))
sketch8.addConstraint(Sketcher.Constraint("Vertical", 6))
sketch8.addConstraint(Sketcher.Constraint("Perpendicular", 1, 3))
sketch8.addConstraint(Sketcher.Constraint("Perpendicular", 3, 5))
sketch8.addConstraint(Sketcher.Constraint("Perpendicular", 5, 7))
sketch8.addConstraint(Sketcher.Constraint("Horizontal", 2, 2, 5, 2))
sketch8.addConstraint(Sketcher.Constraint("Horizontal", 1, 2, 6, 2))
sketch8.addConstraint(Sketcher.Constraint("Vertical", 0, 2, 3, 2))
sketch8.addConstraint(Sketcher.Constraint("Vertical", 4, 2, 7, 2))
sketch8.addConstraint(Sketcher.Constraint("Equal", 4, 2))
sketch8.addConstraint(Sketcher.Constraint("DistanceX", 5, 2, 2, 2, Q("13.026701 mm")))
sketch8.addConstraint(Sketcher.Constraint("DistanceX", 0, 1, 0, 2, Q("5.395836 mm")))
sketch8.addConstraint(Sketcher.Constraint("DistanceX", 0, 2, -1, 1, Q("17.248959 mm")))
sketch8.addConstraint(Sketcher.Constraint("DistanceY", 1, 2, -1, 1, Q("32.06869 mm")))
pad8 = body2.newObject("PartDesign::Pad", "Pad007")
pad8.Profile = sketch8
pad8.Length = 25
doc.recompute()

chamfer2 = body2.newObject("PartDesign::Chamfer", "Chamfer001")
chamfer2.Base = (pad8, edges_at(pad8, [
    (-24.553, -61.871, 1.908),
    (-19.947, -61.871, 0),
    (-15.341, -61.871, 1.908),
    (-13.434, -61.871, 6.513),
    (-15.341, -61.871, 11.119),
    (-19.947, -61.871, 13.027),
    (-24.553, -61.871, 11.119),
    (-26.46, -61.871, 6.513),
    (-24.553, -33.976, 40),
    (-19.947, -35.884, 40),
    (-15.341, -33.976, 40),
    (-13.434, -29.371, 40),
    (-15.341, -24.765, 40),
    (-19.947, -22.857, 40),
    (-24.553, -24.765, 40),
    (-26.46, -29.371, 40),
    (-13.434, 3.129, 6.513),
    (-15.341, 3.129, 1.908),
    (-19.947, 3.129, 0),
    (-24.553, 3.129, 1.908),
    (-26.46, 3.129, 6.513),
    (-24.553, 3.129, 11.119),
    (-19.947, 3.129, 13.027),
    (-15.341, 3.129, 11.119),
]))
chamfer2.Size = 2

doc.recompute()
